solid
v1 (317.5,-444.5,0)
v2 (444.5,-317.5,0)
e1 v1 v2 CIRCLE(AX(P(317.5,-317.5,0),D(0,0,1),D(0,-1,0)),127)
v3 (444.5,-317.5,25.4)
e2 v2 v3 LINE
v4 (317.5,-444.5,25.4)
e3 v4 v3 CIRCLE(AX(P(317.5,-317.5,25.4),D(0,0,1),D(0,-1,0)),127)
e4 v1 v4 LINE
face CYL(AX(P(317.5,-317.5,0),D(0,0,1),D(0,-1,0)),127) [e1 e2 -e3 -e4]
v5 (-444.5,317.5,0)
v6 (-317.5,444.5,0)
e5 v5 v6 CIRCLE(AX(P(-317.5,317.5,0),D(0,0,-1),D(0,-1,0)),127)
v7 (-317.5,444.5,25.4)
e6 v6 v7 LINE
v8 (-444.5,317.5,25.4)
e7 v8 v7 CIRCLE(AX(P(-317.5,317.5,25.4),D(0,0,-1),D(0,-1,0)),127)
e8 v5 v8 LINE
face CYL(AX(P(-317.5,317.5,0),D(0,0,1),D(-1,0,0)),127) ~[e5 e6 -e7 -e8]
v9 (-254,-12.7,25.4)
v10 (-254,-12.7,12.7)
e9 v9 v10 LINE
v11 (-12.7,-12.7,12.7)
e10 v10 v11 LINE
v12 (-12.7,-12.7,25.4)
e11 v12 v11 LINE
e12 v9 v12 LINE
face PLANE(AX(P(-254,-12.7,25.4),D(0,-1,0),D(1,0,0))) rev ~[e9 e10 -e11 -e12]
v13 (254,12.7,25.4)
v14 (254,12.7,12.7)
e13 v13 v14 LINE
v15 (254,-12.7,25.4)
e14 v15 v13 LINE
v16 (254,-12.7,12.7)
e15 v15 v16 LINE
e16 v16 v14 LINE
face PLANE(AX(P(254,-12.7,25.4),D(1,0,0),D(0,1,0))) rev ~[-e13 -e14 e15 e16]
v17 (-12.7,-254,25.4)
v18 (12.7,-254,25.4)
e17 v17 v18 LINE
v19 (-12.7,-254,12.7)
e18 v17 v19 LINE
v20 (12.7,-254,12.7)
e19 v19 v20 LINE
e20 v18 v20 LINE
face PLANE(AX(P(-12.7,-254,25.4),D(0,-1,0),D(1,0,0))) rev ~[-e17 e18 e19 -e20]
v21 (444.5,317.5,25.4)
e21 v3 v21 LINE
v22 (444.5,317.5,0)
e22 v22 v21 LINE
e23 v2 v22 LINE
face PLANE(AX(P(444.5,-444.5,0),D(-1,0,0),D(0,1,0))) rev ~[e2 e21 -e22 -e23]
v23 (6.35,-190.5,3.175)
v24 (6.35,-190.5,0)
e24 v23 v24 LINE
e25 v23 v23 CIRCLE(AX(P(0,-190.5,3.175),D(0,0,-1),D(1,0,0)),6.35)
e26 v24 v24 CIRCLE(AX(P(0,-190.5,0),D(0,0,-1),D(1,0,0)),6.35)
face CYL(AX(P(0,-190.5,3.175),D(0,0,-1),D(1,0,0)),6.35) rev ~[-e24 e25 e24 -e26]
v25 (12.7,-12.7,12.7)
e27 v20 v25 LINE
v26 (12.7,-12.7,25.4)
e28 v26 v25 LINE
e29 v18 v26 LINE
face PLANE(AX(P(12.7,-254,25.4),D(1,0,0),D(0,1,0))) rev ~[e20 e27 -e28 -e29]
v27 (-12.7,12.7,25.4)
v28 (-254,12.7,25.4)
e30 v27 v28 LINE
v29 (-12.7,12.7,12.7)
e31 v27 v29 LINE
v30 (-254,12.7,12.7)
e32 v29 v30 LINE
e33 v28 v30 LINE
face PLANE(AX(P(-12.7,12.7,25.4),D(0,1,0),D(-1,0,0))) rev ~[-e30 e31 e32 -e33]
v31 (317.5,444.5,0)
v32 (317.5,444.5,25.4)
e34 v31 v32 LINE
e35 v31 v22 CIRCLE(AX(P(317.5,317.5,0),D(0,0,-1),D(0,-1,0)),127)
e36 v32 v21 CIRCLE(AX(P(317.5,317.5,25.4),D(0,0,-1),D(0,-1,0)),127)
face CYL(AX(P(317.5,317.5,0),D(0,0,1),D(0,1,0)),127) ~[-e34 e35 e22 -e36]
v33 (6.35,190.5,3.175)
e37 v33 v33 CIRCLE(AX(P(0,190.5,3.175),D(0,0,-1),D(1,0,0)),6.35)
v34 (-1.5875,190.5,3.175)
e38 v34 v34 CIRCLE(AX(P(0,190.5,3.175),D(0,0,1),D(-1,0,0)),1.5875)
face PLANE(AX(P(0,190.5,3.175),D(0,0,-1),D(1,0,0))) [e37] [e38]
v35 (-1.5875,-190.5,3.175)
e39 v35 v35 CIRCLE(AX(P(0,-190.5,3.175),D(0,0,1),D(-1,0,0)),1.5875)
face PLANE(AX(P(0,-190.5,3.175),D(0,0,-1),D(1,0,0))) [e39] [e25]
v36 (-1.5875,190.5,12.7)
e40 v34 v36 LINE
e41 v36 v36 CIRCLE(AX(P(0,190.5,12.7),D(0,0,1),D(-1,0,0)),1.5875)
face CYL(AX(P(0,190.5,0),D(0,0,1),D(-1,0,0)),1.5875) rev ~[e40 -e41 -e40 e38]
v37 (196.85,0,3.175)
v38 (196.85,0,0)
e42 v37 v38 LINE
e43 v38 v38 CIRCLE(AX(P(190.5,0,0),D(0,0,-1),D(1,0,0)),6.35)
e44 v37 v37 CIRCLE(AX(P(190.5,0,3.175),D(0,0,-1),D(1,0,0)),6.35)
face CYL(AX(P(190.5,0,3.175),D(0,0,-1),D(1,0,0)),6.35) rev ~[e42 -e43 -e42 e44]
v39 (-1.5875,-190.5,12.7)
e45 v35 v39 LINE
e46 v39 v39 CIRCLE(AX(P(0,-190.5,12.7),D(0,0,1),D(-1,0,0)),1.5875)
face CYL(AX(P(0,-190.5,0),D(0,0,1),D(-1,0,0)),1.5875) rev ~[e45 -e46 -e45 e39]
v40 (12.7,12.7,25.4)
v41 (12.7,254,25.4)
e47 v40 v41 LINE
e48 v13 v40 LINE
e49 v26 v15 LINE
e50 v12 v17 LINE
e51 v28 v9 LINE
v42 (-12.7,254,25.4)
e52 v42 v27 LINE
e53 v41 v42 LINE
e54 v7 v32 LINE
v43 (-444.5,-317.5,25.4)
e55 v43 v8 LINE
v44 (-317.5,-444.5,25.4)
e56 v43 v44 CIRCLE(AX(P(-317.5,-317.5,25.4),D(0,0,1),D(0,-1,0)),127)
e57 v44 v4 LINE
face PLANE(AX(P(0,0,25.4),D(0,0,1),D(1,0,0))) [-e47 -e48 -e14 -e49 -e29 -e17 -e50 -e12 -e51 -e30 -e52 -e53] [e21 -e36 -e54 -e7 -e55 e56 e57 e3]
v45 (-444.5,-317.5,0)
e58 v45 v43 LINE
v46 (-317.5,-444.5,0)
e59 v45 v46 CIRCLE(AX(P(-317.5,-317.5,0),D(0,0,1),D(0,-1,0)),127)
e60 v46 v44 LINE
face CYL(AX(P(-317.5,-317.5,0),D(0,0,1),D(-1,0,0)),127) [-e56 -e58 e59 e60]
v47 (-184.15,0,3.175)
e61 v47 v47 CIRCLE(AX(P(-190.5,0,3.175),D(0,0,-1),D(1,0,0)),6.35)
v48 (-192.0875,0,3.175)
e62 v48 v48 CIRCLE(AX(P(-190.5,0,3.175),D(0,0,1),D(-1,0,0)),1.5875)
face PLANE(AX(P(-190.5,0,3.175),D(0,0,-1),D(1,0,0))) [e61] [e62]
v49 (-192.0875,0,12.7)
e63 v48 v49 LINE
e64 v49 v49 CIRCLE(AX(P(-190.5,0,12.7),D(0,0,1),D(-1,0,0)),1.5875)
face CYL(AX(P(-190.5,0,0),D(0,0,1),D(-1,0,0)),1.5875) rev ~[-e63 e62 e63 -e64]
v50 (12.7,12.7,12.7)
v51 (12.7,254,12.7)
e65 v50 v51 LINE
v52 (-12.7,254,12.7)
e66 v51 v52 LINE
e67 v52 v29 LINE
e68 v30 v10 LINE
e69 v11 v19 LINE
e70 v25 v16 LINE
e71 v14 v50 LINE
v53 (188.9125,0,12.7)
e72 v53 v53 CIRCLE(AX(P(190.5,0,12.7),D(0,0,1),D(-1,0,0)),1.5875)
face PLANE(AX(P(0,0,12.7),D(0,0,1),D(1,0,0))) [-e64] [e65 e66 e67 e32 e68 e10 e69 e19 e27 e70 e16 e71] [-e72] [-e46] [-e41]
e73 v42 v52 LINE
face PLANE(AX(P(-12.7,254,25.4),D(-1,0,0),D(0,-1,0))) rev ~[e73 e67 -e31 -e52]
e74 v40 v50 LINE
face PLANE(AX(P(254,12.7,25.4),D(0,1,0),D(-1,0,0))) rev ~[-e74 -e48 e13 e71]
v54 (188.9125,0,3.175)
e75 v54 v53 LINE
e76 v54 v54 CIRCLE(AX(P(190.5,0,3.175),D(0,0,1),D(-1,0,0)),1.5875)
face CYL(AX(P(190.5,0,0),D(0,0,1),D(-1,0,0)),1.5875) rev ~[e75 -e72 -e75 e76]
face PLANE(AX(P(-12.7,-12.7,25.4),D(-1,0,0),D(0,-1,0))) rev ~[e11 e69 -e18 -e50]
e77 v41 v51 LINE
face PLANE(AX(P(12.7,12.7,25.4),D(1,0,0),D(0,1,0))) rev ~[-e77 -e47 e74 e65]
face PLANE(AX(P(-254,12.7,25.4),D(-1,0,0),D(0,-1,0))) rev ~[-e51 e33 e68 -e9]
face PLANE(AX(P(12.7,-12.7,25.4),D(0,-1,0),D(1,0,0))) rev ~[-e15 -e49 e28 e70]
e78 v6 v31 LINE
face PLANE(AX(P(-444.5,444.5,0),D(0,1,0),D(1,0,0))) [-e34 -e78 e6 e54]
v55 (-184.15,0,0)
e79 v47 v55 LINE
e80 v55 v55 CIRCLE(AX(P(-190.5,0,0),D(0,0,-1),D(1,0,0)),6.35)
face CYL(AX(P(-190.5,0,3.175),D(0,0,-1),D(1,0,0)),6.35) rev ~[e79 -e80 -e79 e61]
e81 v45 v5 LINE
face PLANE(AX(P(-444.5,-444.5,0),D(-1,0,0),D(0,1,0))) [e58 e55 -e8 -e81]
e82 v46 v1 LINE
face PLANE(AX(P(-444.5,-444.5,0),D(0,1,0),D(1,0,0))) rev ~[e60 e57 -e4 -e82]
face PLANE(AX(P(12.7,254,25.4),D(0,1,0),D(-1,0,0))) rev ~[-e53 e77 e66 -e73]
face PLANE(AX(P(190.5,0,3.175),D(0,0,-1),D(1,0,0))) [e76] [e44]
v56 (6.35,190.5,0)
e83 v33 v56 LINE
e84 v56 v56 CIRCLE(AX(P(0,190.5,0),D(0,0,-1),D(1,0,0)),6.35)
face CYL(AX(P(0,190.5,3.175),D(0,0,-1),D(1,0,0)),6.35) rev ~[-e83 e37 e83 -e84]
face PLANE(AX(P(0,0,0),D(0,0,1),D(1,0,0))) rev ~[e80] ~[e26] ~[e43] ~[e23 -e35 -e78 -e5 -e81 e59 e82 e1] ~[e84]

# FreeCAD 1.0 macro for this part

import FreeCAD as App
import Part
import Sketcher
Q = App.Units.Quantity


def edges_at(feature, points):
    """Names of the edges that pass closest to the given points."""
    edges = feature.Shape.Edges
    near = lambda p: min(range(len(edges)), key=lambda i: edges[i].distToShape(Part.Vertex(*p))[0])
    return sorted({f"Edge{near(p) + 1}" for p in points})


def add_polygon(sketch, points):
    """Adds a closed chain of lines whose ends are joined by coincident constraints."""
    first, n = sketch.GeometryCount, len(points)
    for a, b in zip(points, points[1:] + points[:1]):
        sketch.addGeometry(Part.LineSegment(App.Vector(*a, 0), App.Vector(*b, 0)), False)
    for i in range(n):
        sketch.addConstraint(Sketcher.Constraint("Coincident", first + i, 2, first + (i + 1) % n, 1))

doc = App.newDocument("Part")
body = doc.addObject("PartDesign::Body", "Body")

# Sketch on XY plane
sketch1 = body.newObject("Sketcher::SketchObject", "Sketch")
sketch1.AttachmentSupport = (doc.getObject("XY_Plane"), [""])
sketch1.MapMode = "FlatFace"
add_polygon(sketch1, [(-444, 444), (-444, -444), (444, -444), (444, 444)])  # lines 0-3
sketch1.addConstraint([
    Sketcher.Constraint("Vertical", 0),
    Sketcher.Constraint("Horizontal", 1),
    Sketcher.Constraint("Vertical", 2),
    Sketcher.Constraint("Horizontal", 3),
    Sketcher.Constraint("Symmetric", 0, 2, 2, 2, -1, 1),
    Sketcher.Constraint("Equal", 3, 0),
    Sketcher.Constraint("DistanceX", 1, 1, 1, 2, Q("35 in")),
])
pad1 = body.newObject("PartDesign::Pad", "Pad")
pad1.Profile = sketch1
pad1.Length = Q("1 in")

# Sketch on XY plane
sketch2 = body.newObject("Sketcher::SketchObject", "Sketch001")
sketch2.AttachmentSupport = (doc.getObject("XY_Plane"), [""])
sketch2.MapMode = "FlatFace"
sketch2.AttachmentOffset = App.Placement(App.Vector(0, 0, 1 * 25.4), App.Rotation())
add_polygon(sketch2, [(13, 13), (13, 254), (-13, 254), (-13, 13), (-254, 13), (-254, -13), (-13, -13), (-13, -254), (13, -254), (13, -13), (254, -13), (254, 13)])  # lines 0-11
sketch2.addConstraint([
    Sketcher.Constraint("Vertical", 0),
    Sketcher.Constraint("Horizontal", 1),
    Sketcher.Constraint("Vertical", 2),
    Sketcher.Constraint("Horizontal", 3),
    Sketcher.Constraint("Vertical", 4),
    Sketcher.Constraint("Horizontal", 5),
    Sketcher.Constraint("Vertical", 6),
    Sketcher.Constraint("Horizontal", 7),
    Sketcher.Constraint("Vertical", 8),
    Sketcher.Constraint("Horizontal", 9),
    Sketcher.Constraint("Vertical", 10),
    Sketcher.Constraint("Horizontal", 11),
    Sketcher.Constraint("Symmetric", 0, 2, 6, 2, -1, 1),
    Sketcher.Constraint("Symmetric", 2, 2, 8, 2, -1, 1),
    Sketcher.Constraint("Symmetric", 4, 2, 10, 2, -1, 1),
    Sketcher.Constraint("Symmetric", 5, 2, 8, 2, -2),
    Sketcher.Constraint("Equal", 11, 0),
    Sketcher.Constraint("Equal", 7, 4),
    Sketcher.Constraint("DistanceX", 1, 2, 1, 1, Q("1 in")),
    Sketcher.Constraint("DistanceX", 3, 2, 3, 1, Q("9.5 in")),
])
pocket1 = body.newObject("PartDesign::Pocket", "Pocket")
pocket1.Profile = sketch2
pocket1.Length = Q("0.5 in")

# Sketch on XY plane
sketch3 = body.newObject("Sketcher::SketchObject", "Sketch002")
sketch3.AttachmentSupport = (doc.getObject("XY_Plane"), [""])
sketch3.MapMode = "FlatFace"
sketch3.addGeometry([
    Part.Circle(App.Vector(-190.5, 0, 0), App.Vector(0, 0, 1), 1.6),
    Part.Circle(App.Vector(0, -190.5, 0), App.Vector(0, 0, 1), 1.6),
    Part.Circle(App.Vector(190.5, 0, 0), App.Vector(0, 0, 1), 1.6),
    Part.Circle(App.Vector(0, 190.5, 0), App.Vector(0, 0, 1), 1.6),
], False)
sketch3.addConstraint([
    Sketcher.Constraint("Equal", 0, 1),
    Sketcher.Constraint("Equal", 1, 2),
    Sketcher.Constraint("Equal", 2, 3),
    Sketcher.Constraint("Symmetric", 0, 3, 2, 3, -1, 1),
    Sketcher.Constraint("Symmetric", 1, 3, 3, 3, -1, 1),
    Sketcher.Constraint("PointOnObject", 0, 3, -1),
    Sketcher.Constraint("PointOnObject", 1, 3, -2),
    Sketcher.Constraint("Diameter", 0, Q("0.125 in")),
    Sketcher.Constraint("DistanceX", 0, 3, 2, 3, Q("15 in")),
    Sketcher.Constraint("DistanceY", 1, 3, 3, 3, Q("15 in")),
])
doc.recompute()
hole = body.newObject("PartDesign::Hole", "Hole")
hole.Profile = sketch3
hole.ThreadType = "None"
hole.Diameter = Q("0.125 in")
hole.DepthType = "Dimension"
hole.Depth = Q("2.5 in")
hole.DrillPoint = "Flat"
hole.HoleCutType = "Counterbore"
hole.HoleCutDiameter = Q("0.5 in")
hole.HoleCutDepth = Q("0.125 in")
hole.Reversed = True
doc.recompute()

fillet = body.newObject("PartDesign::Fillet", "Fillet")
fillet.Base = (hole, edges_at(hole, [
    (444.5, -444.5, 12.7),
    (444.5, 444.5, 12.7),
    (-444.5, 444.5, 12.7),
    (-444.5, -444.5, 12.7),
]))
fillet.Radius = Q("5 in")

doc.recompute()
